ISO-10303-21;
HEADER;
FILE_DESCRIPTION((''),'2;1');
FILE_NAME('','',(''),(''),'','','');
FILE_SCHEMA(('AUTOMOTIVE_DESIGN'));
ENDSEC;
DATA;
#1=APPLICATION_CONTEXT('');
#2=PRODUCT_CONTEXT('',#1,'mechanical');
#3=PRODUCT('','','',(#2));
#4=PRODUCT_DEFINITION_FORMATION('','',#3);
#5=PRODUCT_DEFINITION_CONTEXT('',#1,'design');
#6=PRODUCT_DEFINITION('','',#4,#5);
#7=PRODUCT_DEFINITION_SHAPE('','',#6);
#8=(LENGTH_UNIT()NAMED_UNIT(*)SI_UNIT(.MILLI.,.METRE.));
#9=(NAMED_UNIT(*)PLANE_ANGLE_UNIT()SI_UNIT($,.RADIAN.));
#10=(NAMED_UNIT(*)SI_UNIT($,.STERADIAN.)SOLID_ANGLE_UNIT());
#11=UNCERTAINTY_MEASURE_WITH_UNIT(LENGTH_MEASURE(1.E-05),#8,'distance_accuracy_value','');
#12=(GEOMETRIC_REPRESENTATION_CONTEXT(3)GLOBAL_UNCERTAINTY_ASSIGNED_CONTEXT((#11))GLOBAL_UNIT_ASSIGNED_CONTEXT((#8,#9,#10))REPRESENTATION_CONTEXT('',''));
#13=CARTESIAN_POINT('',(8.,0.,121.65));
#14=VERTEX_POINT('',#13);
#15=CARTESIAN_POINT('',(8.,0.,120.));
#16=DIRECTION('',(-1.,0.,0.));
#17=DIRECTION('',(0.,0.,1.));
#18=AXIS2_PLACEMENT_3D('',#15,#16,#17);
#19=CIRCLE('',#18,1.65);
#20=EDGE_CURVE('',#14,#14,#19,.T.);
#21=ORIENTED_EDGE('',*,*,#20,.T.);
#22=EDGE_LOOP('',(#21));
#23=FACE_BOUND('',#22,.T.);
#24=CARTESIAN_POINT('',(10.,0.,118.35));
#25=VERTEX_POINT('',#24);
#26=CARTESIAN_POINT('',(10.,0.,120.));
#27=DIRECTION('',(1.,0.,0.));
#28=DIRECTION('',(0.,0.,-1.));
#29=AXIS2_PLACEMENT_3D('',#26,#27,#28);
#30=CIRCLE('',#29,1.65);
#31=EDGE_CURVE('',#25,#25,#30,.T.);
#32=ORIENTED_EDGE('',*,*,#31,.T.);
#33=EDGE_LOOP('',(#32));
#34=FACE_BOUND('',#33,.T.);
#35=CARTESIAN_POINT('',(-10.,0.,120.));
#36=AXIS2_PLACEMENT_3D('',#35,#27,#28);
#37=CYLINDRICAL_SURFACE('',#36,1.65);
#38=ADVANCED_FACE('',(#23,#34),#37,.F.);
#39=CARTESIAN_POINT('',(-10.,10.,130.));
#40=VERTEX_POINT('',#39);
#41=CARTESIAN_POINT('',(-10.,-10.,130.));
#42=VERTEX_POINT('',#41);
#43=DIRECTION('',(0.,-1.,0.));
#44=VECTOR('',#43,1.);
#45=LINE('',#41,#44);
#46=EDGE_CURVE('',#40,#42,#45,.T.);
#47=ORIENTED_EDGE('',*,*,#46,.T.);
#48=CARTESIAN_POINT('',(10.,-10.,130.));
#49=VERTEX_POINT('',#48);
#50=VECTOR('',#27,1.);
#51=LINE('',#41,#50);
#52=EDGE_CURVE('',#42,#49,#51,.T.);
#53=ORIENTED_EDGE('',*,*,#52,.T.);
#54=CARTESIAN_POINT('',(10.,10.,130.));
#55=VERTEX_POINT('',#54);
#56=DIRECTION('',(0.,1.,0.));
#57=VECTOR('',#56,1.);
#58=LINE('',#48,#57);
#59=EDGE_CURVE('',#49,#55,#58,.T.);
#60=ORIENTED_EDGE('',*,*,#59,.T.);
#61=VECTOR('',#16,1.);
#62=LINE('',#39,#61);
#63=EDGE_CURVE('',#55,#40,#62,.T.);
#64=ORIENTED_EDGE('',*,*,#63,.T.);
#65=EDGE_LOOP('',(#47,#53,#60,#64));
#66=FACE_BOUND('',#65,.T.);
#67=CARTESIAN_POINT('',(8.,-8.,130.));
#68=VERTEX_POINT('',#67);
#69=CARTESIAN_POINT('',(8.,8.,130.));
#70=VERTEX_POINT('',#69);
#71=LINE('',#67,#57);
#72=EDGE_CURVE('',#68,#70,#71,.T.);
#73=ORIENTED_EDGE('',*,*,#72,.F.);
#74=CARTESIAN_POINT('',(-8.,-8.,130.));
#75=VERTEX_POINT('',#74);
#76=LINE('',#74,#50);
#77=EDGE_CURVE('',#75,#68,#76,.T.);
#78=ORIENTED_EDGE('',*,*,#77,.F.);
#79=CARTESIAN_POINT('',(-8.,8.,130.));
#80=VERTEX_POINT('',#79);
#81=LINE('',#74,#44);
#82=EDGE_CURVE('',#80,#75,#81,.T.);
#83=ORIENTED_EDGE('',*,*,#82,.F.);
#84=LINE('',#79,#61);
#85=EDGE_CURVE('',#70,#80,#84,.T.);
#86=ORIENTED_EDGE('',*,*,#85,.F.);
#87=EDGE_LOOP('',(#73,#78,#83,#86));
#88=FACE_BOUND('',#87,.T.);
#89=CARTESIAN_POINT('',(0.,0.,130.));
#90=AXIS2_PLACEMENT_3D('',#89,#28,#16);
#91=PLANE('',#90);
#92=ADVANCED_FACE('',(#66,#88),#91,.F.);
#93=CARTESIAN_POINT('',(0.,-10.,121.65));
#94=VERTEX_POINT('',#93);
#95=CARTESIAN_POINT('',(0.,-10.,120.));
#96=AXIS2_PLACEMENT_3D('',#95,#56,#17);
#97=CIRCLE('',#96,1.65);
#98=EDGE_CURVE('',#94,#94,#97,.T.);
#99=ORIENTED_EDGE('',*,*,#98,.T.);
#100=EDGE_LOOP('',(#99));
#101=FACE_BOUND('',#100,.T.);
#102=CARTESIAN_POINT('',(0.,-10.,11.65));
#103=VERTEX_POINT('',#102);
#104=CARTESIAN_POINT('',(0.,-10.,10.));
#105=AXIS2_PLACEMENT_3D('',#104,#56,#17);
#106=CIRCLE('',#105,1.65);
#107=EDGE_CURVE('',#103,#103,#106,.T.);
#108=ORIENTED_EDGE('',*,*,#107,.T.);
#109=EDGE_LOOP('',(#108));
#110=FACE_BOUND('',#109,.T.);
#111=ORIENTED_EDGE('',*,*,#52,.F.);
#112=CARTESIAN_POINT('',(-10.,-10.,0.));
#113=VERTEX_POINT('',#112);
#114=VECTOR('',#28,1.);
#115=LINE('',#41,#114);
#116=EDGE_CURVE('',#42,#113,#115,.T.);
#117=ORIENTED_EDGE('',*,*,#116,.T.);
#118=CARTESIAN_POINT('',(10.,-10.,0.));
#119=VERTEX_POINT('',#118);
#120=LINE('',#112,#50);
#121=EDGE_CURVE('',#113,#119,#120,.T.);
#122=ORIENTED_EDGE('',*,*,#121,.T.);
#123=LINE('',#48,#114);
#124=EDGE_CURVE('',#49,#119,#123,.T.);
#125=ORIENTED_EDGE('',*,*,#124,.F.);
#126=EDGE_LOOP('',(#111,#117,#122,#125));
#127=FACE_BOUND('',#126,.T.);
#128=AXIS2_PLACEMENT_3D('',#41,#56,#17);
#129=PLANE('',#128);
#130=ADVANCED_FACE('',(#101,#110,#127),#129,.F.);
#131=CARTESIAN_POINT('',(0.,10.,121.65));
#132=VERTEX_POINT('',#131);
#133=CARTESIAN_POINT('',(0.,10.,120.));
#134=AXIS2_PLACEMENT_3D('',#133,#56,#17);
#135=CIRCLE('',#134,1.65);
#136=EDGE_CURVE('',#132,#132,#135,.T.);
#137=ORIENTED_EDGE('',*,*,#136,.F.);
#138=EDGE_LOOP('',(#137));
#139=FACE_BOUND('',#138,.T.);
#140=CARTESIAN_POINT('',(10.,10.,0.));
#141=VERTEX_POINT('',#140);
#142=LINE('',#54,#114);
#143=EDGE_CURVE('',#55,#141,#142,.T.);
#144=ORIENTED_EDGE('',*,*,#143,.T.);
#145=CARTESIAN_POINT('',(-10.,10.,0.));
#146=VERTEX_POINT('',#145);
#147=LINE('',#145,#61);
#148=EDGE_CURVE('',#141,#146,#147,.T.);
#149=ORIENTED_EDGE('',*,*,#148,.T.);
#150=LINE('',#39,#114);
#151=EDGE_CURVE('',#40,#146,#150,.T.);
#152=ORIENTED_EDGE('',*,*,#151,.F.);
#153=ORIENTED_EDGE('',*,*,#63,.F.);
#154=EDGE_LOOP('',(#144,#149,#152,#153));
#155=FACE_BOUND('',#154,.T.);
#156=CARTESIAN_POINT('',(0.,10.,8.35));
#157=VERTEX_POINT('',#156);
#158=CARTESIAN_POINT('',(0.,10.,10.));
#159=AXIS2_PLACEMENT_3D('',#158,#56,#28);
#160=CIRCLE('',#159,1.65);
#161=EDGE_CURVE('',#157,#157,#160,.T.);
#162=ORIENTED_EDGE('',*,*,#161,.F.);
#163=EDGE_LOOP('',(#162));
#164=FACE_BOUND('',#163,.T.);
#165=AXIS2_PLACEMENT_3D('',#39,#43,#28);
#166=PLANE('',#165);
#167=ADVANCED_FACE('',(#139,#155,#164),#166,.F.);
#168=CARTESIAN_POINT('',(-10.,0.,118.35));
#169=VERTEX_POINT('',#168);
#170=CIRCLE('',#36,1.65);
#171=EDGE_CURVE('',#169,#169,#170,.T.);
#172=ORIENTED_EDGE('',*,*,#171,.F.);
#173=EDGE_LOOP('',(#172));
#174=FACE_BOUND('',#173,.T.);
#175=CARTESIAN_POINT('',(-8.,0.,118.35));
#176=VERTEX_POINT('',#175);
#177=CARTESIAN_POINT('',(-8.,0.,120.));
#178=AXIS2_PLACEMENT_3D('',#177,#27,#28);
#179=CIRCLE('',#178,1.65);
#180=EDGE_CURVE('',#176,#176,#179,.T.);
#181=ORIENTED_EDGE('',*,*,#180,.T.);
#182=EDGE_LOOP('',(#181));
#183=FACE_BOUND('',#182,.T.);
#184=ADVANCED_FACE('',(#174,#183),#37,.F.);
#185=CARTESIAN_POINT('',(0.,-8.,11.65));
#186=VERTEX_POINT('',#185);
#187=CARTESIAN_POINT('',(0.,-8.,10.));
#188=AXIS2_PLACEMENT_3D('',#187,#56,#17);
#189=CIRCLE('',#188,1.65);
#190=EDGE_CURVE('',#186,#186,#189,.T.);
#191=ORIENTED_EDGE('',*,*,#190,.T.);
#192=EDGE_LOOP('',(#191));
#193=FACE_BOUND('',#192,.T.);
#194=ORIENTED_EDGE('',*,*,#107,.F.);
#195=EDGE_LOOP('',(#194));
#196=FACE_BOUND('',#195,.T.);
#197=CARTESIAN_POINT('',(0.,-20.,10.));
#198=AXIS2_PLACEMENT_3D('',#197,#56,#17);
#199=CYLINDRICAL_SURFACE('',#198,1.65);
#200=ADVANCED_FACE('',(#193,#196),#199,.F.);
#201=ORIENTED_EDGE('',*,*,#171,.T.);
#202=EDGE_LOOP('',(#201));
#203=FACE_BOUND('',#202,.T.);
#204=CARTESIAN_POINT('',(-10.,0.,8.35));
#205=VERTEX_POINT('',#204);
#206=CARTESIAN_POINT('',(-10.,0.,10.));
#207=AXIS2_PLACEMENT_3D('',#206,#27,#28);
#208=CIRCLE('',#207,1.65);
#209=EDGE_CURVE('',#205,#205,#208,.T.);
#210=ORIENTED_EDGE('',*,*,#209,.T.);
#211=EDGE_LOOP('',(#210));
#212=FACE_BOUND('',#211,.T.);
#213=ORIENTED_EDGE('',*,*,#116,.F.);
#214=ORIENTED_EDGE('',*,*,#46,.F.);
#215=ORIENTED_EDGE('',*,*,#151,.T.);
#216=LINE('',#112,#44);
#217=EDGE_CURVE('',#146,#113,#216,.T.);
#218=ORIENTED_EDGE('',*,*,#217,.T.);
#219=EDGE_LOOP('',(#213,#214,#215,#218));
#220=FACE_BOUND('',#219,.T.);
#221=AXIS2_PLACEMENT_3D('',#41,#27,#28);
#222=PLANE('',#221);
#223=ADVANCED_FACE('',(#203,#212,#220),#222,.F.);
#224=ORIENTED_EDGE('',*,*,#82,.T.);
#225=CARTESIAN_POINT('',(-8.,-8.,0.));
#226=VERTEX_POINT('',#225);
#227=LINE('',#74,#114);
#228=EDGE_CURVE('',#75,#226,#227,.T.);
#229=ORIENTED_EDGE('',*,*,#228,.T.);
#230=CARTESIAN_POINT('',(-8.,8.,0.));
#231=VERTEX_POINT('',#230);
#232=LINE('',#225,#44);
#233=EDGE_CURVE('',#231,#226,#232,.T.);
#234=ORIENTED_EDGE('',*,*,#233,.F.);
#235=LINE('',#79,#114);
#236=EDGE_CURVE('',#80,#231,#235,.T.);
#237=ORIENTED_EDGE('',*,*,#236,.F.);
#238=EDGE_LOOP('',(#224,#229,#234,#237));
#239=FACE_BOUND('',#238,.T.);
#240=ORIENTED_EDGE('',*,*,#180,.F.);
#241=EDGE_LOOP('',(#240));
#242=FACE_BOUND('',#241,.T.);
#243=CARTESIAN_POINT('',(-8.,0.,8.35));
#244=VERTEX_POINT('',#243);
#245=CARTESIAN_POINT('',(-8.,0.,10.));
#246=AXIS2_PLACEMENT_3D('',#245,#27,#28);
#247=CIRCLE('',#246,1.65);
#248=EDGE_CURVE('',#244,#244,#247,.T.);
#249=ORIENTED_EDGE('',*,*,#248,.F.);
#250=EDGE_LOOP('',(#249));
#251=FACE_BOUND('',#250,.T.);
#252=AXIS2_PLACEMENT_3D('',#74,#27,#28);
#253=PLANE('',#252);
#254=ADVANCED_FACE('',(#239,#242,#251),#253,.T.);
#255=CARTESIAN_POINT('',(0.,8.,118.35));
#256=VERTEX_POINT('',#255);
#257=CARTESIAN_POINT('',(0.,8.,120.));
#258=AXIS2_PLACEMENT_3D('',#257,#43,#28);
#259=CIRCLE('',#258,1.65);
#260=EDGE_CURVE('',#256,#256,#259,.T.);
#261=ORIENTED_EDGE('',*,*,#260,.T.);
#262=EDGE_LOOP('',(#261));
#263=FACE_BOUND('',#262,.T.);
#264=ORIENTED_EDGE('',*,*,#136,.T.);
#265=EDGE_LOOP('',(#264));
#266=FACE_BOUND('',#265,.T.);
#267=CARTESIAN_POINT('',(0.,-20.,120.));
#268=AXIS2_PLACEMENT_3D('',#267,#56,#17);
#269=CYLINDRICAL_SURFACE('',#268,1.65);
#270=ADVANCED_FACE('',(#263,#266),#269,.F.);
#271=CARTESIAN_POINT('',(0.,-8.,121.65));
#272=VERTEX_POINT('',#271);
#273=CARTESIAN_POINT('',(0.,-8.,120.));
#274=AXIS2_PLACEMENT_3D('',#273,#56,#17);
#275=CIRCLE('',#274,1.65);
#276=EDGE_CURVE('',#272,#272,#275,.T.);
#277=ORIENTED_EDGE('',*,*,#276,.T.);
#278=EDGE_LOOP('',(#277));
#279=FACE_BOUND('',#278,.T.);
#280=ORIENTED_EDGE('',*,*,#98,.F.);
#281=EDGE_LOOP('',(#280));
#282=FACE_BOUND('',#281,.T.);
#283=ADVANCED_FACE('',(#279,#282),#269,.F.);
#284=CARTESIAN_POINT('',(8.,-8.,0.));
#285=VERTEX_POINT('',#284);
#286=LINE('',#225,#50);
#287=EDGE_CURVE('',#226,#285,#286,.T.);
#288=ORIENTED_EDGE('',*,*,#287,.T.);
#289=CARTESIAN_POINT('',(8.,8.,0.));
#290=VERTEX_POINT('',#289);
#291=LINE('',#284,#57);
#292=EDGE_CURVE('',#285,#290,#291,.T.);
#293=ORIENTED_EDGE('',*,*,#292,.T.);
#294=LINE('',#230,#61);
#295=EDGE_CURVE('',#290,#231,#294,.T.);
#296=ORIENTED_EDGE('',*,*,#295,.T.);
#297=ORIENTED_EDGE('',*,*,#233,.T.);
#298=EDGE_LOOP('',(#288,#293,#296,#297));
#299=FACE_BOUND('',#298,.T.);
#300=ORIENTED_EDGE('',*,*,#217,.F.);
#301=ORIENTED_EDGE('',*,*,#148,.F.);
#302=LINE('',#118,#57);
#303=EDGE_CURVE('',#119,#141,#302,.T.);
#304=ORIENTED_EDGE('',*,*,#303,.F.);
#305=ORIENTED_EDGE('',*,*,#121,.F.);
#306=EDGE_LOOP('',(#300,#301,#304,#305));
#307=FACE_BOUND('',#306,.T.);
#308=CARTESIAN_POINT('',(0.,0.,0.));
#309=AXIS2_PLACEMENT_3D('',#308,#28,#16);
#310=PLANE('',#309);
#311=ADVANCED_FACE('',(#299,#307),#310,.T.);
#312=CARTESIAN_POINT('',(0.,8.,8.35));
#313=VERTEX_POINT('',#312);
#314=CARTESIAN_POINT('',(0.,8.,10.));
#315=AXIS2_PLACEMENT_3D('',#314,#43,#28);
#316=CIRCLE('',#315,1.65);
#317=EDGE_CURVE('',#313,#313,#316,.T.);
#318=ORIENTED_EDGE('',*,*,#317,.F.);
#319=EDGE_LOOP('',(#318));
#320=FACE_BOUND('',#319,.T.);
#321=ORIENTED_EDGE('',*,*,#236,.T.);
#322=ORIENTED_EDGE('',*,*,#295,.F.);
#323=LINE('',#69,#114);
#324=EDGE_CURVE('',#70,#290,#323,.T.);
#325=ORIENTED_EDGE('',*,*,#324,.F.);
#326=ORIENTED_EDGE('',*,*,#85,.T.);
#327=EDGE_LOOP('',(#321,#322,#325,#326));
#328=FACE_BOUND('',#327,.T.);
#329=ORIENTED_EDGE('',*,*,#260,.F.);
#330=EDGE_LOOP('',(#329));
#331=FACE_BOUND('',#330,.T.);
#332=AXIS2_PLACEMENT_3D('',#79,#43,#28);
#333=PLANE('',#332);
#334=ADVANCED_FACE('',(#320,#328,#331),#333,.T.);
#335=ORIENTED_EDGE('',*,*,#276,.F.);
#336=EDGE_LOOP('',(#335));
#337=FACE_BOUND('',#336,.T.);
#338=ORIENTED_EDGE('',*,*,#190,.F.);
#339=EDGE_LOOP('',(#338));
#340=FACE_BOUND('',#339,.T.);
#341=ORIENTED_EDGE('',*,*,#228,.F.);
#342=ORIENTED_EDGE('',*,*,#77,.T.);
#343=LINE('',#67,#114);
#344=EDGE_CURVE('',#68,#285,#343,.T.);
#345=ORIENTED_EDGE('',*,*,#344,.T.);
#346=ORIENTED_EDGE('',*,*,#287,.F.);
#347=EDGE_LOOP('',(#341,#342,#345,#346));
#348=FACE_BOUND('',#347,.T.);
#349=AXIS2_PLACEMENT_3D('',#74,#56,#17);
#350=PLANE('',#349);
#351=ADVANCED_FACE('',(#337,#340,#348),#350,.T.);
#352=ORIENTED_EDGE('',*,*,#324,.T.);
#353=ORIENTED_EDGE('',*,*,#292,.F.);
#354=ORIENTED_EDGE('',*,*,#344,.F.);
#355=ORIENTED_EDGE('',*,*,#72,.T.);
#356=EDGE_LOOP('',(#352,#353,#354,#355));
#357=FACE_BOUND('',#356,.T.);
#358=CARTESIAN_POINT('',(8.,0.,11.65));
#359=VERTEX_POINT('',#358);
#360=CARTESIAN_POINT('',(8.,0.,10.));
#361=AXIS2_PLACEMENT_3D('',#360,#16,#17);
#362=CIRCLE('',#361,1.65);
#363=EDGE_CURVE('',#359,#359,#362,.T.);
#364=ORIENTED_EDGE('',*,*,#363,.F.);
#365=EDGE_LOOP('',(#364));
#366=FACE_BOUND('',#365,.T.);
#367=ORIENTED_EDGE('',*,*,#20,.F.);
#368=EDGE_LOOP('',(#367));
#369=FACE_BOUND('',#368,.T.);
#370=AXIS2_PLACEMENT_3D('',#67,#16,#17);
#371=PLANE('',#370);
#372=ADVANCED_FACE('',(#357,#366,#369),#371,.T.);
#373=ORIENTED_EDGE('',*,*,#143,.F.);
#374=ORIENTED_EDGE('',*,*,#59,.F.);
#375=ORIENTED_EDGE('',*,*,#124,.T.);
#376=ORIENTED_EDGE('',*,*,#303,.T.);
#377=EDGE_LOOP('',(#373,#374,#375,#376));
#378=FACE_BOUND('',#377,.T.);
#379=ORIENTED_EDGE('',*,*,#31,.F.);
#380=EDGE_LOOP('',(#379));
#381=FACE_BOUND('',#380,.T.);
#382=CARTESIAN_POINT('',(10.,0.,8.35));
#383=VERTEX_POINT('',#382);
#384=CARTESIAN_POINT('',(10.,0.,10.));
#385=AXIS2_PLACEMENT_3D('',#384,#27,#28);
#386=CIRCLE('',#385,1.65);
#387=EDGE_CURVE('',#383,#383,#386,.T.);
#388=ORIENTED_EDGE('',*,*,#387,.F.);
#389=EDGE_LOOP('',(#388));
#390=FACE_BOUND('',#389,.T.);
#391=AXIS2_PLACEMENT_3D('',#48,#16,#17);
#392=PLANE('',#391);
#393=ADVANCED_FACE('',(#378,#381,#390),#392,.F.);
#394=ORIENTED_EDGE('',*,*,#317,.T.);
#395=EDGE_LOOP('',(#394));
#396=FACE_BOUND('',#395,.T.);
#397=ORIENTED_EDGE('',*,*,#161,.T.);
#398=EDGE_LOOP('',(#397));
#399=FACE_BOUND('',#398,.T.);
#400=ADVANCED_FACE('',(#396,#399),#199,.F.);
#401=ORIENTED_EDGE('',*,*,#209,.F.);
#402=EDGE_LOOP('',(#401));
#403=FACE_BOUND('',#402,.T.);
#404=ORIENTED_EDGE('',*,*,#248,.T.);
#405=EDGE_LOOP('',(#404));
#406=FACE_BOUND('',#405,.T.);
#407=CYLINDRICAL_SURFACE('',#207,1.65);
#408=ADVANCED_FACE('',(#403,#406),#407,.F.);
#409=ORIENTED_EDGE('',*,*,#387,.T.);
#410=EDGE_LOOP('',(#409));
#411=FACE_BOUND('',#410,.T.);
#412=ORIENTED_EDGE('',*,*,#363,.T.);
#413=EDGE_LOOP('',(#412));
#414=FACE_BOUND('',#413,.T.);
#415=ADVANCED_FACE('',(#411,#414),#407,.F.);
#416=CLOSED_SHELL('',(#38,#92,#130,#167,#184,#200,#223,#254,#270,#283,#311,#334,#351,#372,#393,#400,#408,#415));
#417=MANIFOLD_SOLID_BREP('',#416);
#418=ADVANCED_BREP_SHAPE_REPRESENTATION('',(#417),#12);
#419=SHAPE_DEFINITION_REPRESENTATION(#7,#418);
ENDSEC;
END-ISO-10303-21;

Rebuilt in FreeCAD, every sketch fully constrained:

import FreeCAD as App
import Part
import Sketcher

V = App.Vector
Q = App.Units.Quantity


def add_polygon(sketch, points):
    """Adds a closed chain of lines whose ends are joined by coincident constraints."""
    first, n = sketch.GeometryCount, len(points)
    for a, b in zip(points, points[1:] + points[:1]):
        sketch.addGeometry(Part.LineSegment(App.Vector(*a, 0), App.Vector(*b, 0)), False)
    for i in range(n):
        sketch.addConstraint(Sketcher.Constraint("Coincident", first + i, 2, first + (i + 1) % n, 1))

doc = App.newDocument("Part")
body = doc.addObject("PartDesign::Body", "Body")

sketch1 = body.newObject("Sketcher::SketchObject", "Sketch")
sketch1.AttachmentSupport = (doc.getObject("XY_Plane"), [""])
sketch1.MapMode = "FlatFace"
add_polygon(sketch1, [(-10, 10), (-10, -10), (10, -10), (10, 10)])
add_polygon(sketch1, [(8, -8), (-8, -8), (-8, 8), (8, 8)])
sketch1.addConstraint(Sketcher.Constraint("Vertical", 0))
sketch1.addConstraint(Sketcher.Constraint("Horizontal", 1))
sketch1.addConstraint(Sketcher.Constraint("Vertical", 2))
sketch1.addConstraint(Sketcher.Constraint("Horizontal", 3))
sketch1.addConstraint(Sketcher.Constraint("Horizontal", 4))
sketch1.addConstraint(Sketcher.Constraint("Vertical", 5))
sketch1.addConstraint(Sketcher.Constraint("Horizontal", 6))
sketch1.addConstraint(Sketcher.Constraint("Vertical", 7))
sketch1.addConstraint(Sketcher.Constraint("Symmetric", 0, 2, 2, 2, -1, 1))
sketch1.addConstraint(Sketcher.Constraint("Symmetric", 4, 2, 6, 2, -1, 1))
sketch1.addConstraint(Sketcher.Constraint("Equal", 3, 0))
sketch1.addConstraint(Sketcher.Constraint("Equal", 6, 5))
sketch1.addConstraint(Sketcher.Constraint("DistanceX", 1, 1, 1, 2, Q("20 mm")))
sketch1.addConstraint(Sketcher.Constraint("DistanceX", 4, 2, 4, 1, Q("16 mm")))
pad1 = body.newObject("PartDesign::Pad", "Pad")
pad1.Profile = sketch1
pad1.Length = 130

sketch2 = body.newObject("Sketcher::SketchObject", "Sketch001")
sketch2.AttachmentSupport = (doc.getObject("XZ_Plane"), [""])
sketch2.MapMode = "FlatFace"
sketch2.AttachmentOffset = App.Placement(V(0, 0, -10), App.Rotation())
sketch2.addGeometry(Part.Circle(V(0, 120, 0), V(0, 0, 1), 1.6), False)
sketch2.addGeometry(Part.Circle(V(0, 10, 0), V(0, 0, 1), 1.6), False)
sketch2.addConstraint(Sketcher.Constraint("Equal", 0, 1))
sketch2.addConstraint(Sketcher.Constraint("PointOnObject", 0, 3, -2))
sketch2.addConstraint(Sketcher.Constraint("PointOnObject", 1, 3, -2))
sketch2.addConstraint(Sketcher.Constraint("Diameter", 0, Q("3.3 mm")))
sketch2.addConstraint(Sketcher.Constraint("DistanceY", -1, 1, 0, 3, Q("120 mm")))
sketch2.addConstraint(Sketcher.Constraint("DistanceY", -1, 1, 1, 3, Q("10 mm")))
pocket1 = body.newObject("PartDesign::Pocket", "Pocket")
pocket1.Profile = sketch2
pocket1.Length = 30
pocket1.Reversed = True

sketch3 = body.newObject("Sketcher::SketchObject", "Sketch002")
sketch3.AttachmentSupport = (doc.getObject("YZ_Plane"), [""])
sketch3.MapMode = "FlatFace"
sketch3.addGeometry(Part.Circle(V(0, 120, 0), V(0, 0, 1), 1.6), False)
sketch3.addGeometry(Part.Circle(V(0, 10, 0), V(0, 0, 1), 1.6), False)
sketch3.addConstraint(Sketcher.Constraint("Equal", 0, 1))
sketch3.addConstraint(Sketcher.Constraint("PointOnObject", 0, 3, -2))
sketch3.addConstraint(Sketcher.Constraint("PointOnObject", 1, 3, -2))
sketch3.addConstraint(Sketcher.Constraint("Diameter", 0, Q("3.3 mm")))
sketch3.addConstraint(Sketcher.Constraint("DistanceY", -1, 1, 0, 3, Q("120 mm")))
sketch3.addConstraint(Sketcher.Constraint("DistanceY", -1, 1, 1, 3, Q("10 mm")))
pocket2 = body.newObject("PartDesign::Pocket", "Pocket001")
pocket2.Profile = sketch3
pocket2.Length = 20
pocket2.Midplane = True

doc.recompute()
